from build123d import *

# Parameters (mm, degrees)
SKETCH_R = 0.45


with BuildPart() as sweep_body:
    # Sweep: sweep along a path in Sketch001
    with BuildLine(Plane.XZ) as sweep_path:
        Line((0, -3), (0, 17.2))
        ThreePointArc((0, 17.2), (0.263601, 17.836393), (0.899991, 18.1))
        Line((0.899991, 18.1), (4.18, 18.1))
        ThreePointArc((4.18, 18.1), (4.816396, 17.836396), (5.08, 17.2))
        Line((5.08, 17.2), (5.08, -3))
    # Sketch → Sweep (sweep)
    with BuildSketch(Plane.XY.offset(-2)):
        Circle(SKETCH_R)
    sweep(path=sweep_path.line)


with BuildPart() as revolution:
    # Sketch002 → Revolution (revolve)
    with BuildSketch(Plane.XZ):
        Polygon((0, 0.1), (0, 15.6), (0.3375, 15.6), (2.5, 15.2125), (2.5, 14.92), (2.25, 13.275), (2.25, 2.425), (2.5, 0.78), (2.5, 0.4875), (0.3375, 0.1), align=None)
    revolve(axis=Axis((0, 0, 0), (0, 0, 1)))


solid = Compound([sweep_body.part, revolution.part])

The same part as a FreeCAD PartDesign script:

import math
import FreeCAD as App
import Part
import Sketcher
from FreeCAD import Vector


def add_polygon(sketch, points):
    """Adds a closed chain of lines whose ends are joined by coincident constraints."""
    first, n = sketch.GeometryCount, len(points)
    for a, b in zip(points, points[1:] + points[:1]):
        sketch.addGeometry(Part.LineSegment(App.Vector(*a, 0), App.Vector(*b, 0)), False)
    for i in range(n):
        sketch.addConstraint(Sketcher.Constraint("Coincident", first + i, 2, first + (i + 1) % n, 1))

doc = App.newDocument("Part")
body = doc.addObject("PartDesign::Body", "Body")

# Sketch on XY plane
sketch1 = body.newObject("Sketcher::SketchObject", "Sketch")
sketch1.AttachmentSupport = (doc.getObject("XY_Plane"), [""])
sketch1.MapMode = "FlatFace"
sketch1.AttachmentOffset = App.Placement(Vector(0, 0, -2), App.Rotation())
sketch1.addGeometry(Part.Circle(Vector(0, 0, 0), Vector(0, 0, 1), 0.45), False)
sketch1.addConstraint([
    Sketcher.Constraint("Coincident", 0, 3, -1, 1),
    Sketcher.Constraint("Diameter", 0, 0.9),
])

# Sketch on XZ plane
sketch2 = body.newObject("Sketcher::SketchObject", "Sketch001")
sketch2.AttachmentSupport = (doc.getObject("XZ_Plane"), [""])
sketch2.MapMode = "FlatFace"
sketch2.addGeometry([
    Part.LineSegment(Vector(0, -3, 0), Vector(0, 17.2, 0)),  # 0
    Part.ArcOfCircle(Part.Circle(Vector(0.9, 17.2, 0), Vector(0, 0, 1), 0.9), math.radians(90), math.radians(180)),  # 1
    Part.LineSegment(Vector(0.9, 18.1, 0), Vector(4.2, 18.1, 0)),  # 2
    Part.ArcOfCircle(Part.Circle(Vector(4.2, 17.2, 0), Vector(0, 0, 1), 0.9), math.radians(0), math.radians(90)),  # 3
    Part.LineSegment(Vector(5.1, 17.2, 0), Vector(5.1, -3, 0)),  # 4
], False)
sketch2.addConstraint([
    Sketcher.Constraint("Tangent", 0, 2, 1, 2),
    Sketcher.Constraint("Coincident", 1, 1, 2, 1),
    Sketcher.Constraint("Tangent", 2, 2, 3, 2),
    Sketcher.Constraint("Tangent", 3, 1, 4, 1),
    Sketcher.Constraint("Vertical", 0),
    Sketcher.Constraint("Horizontal", 2),
    Sketcher.Constraint("Vertical", 4),
    Sketcher.Constraint("Equal", 1, 3),
    Sketcher.Constraint("PointOnObject", 0, 1, -2),
    Sketcher.Constraint("Horizontal", 0, 1, 4, 2),
    Sketcher.Constraint("Radius", 1, 0.9),
    Sketcher.Constraint("DistanceY", 0, 1, 0, 2, 20.2),
    Sketcher.Constraint("DistanceY", 0, 1, -1, 1, 3.0),
    Sketcher.Constraint("DistanceX", -1, 1, 3, 3, 4.18),
    Sketcher.Constraint("DistanceX", 2, 1, 2, 2, 3.280009),
])
doc.recompute()

additivepipe = body.newObject("PartDesign::AdditivePipe", "AdditivePipe")
additivepipe.Profile = sketch1
additivepipe.Spine = (sketch2, ["Edge1", "Edge2", "Edge3", "Edge4", "Edge5"])
body2 = doc.addObject("PartDesign::Body", "Body001")

# Sketch on XZ plane
sketch3 = body2.newObject("Sketcher::SketchObject", "Sketch002")
sketch3.AttachmentSupport = (doc.getObject("XZ_Plane001"), [""])
sketch3.MapMode = "FlatFace"
add_polygon(sketch3, [(0, 15.6), (0, 0.1), (0.34, 0.1), (2.5, 0.49), (2.5, 0.78), (2.25, 2.42), (2.25, 13.28), (2.5, 14.92), (2.5, 15.21), (0.34, 15.6)])  # lines 0-9
sketch3.addConstraint([
    Sketcher.Constraint("Vertical", 0),
    Sketcher.Constraint("Horizontal", 1),
    Sketcher.Constraint("Vertical", 3),
    Sketcher.Constraint("Vertical", 5),
    Sketcher.Constraint("Vertical", 7),
    Sketcher.Constraint("Horizontal", 9),
    Sketcher.Constraint("PointOnObject", 0, 2, -2),
    Sketcher.Constraint("Vertical", 3, 2, 6, 2),
    Sketcher.Constraint("Vertical", 1, 2, 8, 2),
    Sketcher.Constraint("Equal", 3, 7),
    Sketcher.Constraint("Equal", 4, 6),
    Sketcher.Constraint("Equal", 2, 8),
    Sketcher.Constraint("DistanceY", 0, 2, 0, 1, 15.5),
    Sketcher.Constraint("DistanceY", 5, 1, 5, 2, 10.85),
    Sketcher.Constraint("DistanceY", -1, 1, 0, 2, 0.1),
    Sketcher.Constraint("DistanceX", -1, 1, 2, 2, 2.5),
    Sketcher.Constraint("DistanceY", -1, 1, 3, 2, 0.78),
    Sketcher.Constraint("DistanceX", -1, 1, 4, 2, 2.25),
    Sketcher.Constraint("DistanceX", 1, 1, 1, 2, 0.3375),
    Sketcher.Constraint("DistanceY", 3, 1, 3, 2, 0.2925),
])
revolution = body2.newObject("PartDesign::Revolution", "Revolution")
revolution.Profile = sketch3
revolution.ReferenceAxis = (sketch3, ["V_Axis"])
revolution.Angle = 360

doc.recompute()
